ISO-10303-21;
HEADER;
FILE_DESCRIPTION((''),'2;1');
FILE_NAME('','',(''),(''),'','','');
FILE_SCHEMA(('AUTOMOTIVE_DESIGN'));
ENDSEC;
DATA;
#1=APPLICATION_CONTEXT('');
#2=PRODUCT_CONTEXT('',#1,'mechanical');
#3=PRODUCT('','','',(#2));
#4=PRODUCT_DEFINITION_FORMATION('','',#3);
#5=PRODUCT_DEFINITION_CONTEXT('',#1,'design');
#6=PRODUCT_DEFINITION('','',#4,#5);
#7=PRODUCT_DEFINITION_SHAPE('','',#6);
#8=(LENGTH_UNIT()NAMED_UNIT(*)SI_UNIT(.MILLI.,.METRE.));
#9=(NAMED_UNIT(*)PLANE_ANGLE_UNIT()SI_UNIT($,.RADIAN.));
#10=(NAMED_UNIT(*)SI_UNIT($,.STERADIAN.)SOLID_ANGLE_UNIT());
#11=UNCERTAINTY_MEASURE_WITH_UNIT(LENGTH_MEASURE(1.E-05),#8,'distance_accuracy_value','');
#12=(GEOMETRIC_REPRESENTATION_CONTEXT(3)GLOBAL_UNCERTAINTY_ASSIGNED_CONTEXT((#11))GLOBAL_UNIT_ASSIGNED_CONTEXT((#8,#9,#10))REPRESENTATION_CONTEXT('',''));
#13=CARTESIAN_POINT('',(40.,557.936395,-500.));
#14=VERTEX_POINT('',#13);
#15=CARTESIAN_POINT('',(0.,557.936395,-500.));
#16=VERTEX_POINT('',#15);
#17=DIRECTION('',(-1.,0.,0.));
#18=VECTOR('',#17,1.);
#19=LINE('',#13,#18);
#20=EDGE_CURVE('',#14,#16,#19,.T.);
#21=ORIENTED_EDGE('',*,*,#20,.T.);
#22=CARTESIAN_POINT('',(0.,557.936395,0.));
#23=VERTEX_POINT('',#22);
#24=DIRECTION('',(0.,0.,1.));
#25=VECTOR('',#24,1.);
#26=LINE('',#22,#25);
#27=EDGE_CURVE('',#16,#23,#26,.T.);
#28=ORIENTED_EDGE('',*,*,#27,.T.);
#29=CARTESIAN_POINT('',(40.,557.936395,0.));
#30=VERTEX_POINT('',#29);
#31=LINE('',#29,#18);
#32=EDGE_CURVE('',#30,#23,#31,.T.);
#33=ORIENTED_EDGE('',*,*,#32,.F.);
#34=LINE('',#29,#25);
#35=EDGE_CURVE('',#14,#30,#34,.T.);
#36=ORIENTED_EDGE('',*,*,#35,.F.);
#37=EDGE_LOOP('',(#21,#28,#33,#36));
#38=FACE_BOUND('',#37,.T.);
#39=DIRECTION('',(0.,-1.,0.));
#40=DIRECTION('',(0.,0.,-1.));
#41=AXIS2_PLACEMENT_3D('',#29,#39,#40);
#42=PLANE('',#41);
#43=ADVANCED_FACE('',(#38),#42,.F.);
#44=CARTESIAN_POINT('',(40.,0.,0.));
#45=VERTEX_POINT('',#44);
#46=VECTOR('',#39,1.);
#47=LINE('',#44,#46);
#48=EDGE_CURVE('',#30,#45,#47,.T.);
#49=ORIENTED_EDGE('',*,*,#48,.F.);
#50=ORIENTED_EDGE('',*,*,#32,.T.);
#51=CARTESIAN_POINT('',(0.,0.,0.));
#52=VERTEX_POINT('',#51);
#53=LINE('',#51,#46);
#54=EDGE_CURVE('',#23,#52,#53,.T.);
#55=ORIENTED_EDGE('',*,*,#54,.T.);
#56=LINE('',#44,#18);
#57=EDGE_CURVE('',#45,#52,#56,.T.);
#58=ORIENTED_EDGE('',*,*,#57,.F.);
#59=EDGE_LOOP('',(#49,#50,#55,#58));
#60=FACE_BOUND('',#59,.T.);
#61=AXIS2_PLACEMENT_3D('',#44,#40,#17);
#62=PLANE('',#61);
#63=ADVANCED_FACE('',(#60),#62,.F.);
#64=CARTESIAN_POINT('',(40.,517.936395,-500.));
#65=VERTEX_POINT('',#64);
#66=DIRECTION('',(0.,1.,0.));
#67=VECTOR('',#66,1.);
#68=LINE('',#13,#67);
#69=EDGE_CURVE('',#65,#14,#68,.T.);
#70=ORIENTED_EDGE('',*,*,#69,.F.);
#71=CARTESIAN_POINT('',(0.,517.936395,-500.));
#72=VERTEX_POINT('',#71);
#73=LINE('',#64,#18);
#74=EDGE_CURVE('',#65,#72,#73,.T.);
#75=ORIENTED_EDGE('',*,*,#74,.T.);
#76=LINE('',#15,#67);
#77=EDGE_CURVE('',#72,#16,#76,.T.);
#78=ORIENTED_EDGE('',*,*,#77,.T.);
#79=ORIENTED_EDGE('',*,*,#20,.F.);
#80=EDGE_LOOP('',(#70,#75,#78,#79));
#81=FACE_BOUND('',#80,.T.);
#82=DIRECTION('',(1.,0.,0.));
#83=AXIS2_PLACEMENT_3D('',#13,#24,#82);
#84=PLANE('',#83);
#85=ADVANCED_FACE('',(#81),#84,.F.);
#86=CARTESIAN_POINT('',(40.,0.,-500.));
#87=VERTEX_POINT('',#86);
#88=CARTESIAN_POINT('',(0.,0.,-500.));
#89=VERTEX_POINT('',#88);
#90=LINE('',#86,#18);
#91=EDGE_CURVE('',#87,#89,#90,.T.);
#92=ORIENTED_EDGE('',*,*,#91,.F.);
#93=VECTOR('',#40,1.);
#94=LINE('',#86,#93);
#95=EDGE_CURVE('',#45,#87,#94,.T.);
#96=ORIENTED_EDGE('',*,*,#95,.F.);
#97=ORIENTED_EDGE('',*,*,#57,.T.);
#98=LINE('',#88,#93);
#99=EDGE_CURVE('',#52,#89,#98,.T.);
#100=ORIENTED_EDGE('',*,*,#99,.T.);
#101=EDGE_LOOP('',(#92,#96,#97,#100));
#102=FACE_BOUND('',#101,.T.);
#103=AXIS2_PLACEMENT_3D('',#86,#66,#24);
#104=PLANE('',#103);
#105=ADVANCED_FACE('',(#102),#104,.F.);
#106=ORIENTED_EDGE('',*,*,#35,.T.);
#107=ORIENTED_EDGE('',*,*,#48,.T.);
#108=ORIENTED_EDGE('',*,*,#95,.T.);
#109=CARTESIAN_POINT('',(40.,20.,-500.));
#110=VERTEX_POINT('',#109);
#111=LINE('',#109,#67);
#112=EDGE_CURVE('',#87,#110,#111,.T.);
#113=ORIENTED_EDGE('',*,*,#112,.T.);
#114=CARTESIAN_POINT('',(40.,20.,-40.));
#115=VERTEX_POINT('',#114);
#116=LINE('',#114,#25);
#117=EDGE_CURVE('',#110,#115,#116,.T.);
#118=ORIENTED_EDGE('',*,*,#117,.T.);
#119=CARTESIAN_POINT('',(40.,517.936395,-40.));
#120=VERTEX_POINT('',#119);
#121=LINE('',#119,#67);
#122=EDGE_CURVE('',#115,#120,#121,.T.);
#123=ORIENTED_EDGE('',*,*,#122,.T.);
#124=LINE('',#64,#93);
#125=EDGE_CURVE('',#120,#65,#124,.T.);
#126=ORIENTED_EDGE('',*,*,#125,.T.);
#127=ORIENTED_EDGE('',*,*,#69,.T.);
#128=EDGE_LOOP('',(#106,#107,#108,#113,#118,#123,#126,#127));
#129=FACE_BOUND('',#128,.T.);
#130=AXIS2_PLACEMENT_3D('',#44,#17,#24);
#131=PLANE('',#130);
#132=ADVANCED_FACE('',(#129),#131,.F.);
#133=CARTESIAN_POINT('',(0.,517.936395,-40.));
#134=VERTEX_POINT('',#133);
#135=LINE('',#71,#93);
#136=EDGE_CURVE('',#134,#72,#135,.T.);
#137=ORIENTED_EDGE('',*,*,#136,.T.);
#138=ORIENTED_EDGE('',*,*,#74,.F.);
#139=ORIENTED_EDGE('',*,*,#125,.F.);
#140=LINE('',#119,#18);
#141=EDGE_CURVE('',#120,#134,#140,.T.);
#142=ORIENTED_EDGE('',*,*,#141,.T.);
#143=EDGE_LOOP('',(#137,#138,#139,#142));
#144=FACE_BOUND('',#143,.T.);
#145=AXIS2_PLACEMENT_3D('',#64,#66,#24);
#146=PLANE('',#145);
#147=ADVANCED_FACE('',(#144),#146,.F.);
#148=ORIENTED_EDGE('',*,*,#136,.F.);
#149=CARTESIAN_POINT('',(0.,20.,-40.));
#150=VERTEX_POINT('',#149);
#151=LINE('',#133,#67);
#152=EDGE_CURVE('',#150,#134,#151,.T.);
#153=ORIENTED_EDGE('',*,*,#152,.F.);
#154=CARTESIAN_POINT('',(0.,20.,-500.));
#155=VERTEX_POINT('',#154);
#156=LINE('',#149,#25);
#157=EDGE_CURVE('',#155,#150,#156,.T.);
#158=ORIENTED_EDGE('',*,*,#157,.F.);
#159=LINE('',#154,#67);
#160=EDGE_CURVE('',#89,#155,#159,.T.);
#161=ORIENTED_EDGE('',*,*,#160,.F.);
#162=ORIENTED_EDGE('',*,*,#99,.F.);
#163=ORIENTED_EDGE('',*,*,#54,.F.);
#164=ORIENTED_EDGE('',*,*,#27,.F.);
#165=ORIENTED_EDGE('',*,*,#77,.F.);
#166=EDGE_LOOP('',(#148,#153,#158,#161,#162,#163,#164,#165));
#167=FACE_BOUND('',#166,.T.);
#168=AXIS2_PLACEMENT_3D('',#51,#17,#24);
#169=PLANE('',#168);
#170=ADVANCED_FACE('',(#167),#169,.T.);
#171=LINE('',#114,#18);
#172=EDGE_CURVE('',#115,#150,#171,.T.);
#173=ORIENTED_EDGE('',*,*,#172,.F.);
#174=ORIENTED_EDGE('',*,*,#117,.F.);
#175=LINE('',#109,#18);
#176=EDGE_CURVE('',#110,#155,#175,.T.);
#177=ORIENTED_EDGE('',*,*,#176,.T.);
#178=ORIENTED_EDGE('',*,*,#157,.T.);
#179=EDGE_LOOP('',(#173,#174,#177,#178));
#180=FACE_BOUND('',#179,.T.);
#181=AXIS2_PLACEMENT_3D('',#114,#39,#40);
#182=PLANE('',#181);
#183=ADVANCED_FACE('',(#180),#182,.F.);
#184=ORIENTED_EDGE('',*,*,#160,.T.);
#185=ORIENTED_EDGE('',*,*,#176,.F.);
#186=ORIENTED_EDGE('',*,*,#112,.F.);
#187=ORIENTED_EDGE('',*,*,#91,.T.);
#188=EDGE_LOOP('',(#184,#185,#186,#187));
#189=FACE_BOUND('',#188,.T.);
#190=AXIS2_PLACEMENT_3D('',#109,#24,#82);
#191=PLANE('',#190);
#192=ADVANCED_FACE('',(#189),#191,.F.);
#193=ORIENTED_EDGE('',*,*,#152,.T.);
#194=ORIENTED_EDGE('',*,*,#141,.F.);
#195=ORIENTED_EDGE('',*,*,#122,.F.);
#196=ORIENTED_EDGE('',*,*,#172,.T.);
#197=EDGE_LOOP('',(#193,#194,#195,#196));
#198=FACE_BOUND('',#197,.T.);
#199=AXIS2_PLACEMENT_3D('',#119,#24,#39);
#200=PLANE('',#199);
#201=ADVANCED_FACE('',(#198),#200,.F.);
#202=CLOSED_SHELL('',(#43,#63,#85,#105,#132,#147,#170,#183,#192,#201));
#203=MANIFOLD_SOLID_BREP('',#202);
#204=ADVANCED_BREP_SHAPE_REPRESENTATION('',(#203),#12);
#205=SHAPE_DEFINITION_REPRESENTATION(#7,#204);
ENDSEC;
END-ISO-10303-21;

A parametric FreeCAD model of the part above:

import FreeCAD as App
import Part
import Sketcher

V = App.Vector


def add_polygon(sketch, points):
    """Adds a closed chain of lines whose ends are joined by coincident constraints."""
    first, n = sketch.GeometryCount, len(points)
    for a, b in zip(points, points[1:] + points[:1]):
        sketch.addGeometry(Part.LineSegment(App.Vector(*a, 0), App.Vector(*b, 0)), False)
    for i in range(n):
        sketch.addConstraint(Sketcher.Constraint("Coincident", first + i, 2, first + (i + 1) % n, 1))

doc = App.newDocument("Part")
params = doc.addObject("Spreadsheet::Sheet", "Params")
for row, (alias, value) in enumerate([
    ("sketch1_width", "20 mm"),
    ("sketch1_width2", "40 mm"),
    ("sketch1_height", "500 mm"),
    ("sketch1_height2", "460 mm"),
    ("pad1_length", "40 mm"),
], start=1):
    params.set(f"A{row}", alias)
    params.set(f"B{row}", "=" + value)
    params.setAlias(f"B{row}", alias)

body = doc.addObject("PartDesign::Body", "Body")

sketch1 = body.newObject("Sketcher::SketchObject", "Sketch")
sketch1.AttachmentSupport = (doc.getObject("YZ_Plane"), [""])
sketch1.MapMode = "FlatFace"
add_polygon(sketch1, [(558, 0), (0, 0), (0, -500), (20, -500), (20, -40), (518, -40), (518, -500), (558, -500)])
sketch1.addConstraint([
    Sketcher.Constraint("Horizontal", 0),
    Sketcher.Constraint("Vertical", 1),
    Sketcher.Constraint("Horizontal", 2),
    Sketcher.Constraint("Vertical", 3),
    Sketcher.Constraint("Horizontal", 4),
    Sketcher.Constraint("Vertical", 5),
    Sketcher.Constraint("Horizontal", 6),
    Sketcher.Constraint("Vertical", 7),
    Sketcher.Constraint("Coincident", 0, 2, -1, 1),
    Sketcher.Constraint("Horizontal", 2, 2, 5, 2),
    Sketcher.Constraint("DistanceX", 2, 1, 2, 2, 20.0),
    Sketcher.Constraint("DistanceX", 6, 1, 6, 2, 40.0),
    Sketcher.Constraint("DistanceY", 1, 2, 1, 1, 500.0),
    Sketcher.Constraint("DistanceY", 3, 1, 3, 2, 460.0),
    Sketcher.Constraint("DistanceX", 0, 2, 0, 1, 557.936395),
])
sketch1.setExpression("Constraints[18]", "Params.sketch1_width")
sketch1.setExpression("Constraints[19]", "Params.sketch1_width2")
sketch1.setExpression("Constraints[20]", "Params.sketch1_height")
sketch1.setExpression("Constraints[21]", "Params.sketch1_height2")
pad1 = body.newObject("PartDesign::Pad", "Pad")
pad1.Profile = sketch1
pad1.setExpression("Length", "Params.pad1_length")

doc.recompute()
